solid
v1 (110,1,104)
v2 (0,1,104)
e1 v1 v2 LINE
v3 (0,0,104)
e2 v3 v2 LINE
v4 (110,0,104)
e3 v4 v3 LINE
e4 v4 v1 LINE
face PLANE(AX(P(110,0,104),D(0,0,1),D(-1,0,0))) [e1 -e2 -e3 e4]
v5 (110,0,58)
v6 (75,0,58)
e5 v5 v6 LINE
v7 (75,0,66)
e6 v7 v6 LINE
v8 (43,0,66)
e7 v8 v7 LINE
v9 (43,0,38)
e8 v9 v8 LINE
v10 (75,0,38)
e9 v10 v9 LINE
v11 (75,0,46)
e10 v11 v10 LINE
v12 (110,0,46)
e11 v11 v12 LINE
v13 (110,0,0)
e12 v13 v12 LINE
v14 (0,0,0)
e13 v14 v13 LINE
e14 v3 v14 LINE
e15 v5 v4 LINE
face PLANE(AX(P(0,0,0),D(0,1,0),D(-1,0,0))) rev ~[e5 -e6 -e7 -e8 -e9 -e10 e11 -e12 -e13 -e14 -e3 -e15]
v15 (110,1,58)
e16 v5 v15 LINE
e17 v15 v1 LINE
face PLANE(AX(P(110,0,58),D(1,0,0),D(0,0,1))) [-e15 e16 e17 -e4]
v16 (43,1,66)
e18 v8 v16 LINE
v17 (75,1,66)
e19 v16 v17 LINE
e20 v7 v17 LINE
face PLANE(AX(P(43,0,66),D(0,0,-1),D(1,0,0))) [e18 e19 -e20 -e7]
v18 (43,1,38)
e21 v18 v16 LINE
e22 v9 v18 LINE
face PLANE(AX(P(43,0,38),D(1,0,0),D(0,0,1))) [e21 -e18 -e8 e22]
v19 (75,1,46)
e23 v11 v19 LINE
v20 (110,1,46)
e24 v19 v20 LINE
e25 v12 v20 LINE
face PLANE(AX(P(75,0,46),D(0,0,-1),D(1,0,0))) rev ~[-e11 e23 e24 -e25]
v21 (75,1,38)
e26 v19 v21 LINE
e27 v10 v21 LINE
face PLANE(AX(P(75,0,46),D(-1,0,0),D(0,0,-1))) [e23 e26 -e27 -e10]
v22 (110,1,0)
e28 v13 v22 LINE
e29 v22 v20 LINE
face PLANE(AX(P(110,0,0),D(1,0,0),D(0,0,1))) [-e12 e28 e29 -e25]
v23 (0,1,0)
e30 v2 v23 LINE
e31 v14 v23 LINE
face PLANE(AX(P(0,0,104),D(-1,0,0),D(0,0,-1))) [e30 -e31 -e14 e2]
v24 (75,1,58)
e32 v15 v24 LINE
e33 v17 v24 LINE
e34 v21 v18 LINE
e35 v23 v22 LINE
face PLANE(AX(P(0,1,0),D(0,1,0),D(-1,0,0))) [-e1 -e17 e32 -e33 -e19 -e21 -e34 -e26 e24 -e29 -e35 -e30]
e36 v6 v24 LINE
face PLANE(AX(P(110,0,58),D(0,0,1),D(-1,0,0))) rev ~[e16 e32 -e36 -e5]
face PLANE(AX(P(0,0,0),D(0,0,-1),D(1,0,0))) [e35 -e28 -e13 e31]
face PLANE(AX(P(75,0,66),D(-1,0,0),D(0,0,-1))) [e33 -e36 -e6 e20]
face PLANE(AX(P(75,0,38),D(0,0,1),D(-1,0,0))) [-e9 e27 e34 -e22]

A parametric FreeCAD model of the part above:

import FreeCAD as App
import Part
import Sketcher
from FreeCAD import Vector
Q = App.Units.Quantity

doc = App.newDocument("Part")
params = doc.addObject("Spreadsheet::Sheet", "Params")
for row, (alias, value) in enumerate([
    ("sketch1_width", "110 mm"),
    ("sketch1_width2", "35 mm"),
    ("sketch1_width3", "32 mm"),
    ("sketch1_height", "104 mm"),
    ("sketch1_height2", "46 mm"),
    ("pad1_length", "1 mm"),
], start=1):
    params.set(f"A{row}", alias)
    params.set(f"B{row}", "=" + value)
    params.setAlias(f"B{row}", alias)

body = doc.addObject("PartDesign::Body", "Body")

sketch1 = body.newObject("Sketcher::SketchObject", "Sketch")
sketch1.AttachmentSupport = (doc.getObject("XZ_Plane"), [""])
sketch1.MapMode = "FlatFace"
sketch1.addGeometry([
    Part.LineSegment(Vector(110, 0, 0), Vector(0, 0, 0)),
    Part.LineSegment(Vector(0, 0, 0), Vector(0, 104, 0)),
    Part.LineSegment(Vector(0, 104, 0), Vector(110, 104, 0)),
    Part.LineSegment(Vector(110, 104, 0), Vector(110, 58, 0)),
    Part.LineSegment(Vector(110, 58, 0), Vector(75, 58, 0)),
    Part.LineSegment(Vector(75, 58, 0), Vector(75, 66, 0)),
    Part.LineSegment(Vector(75, 66, 0), Vector(43, 66, 0)),
    Part.LineSegment(Vector(43, 66, 0), Vector(43, 38, 0)),
    Part.LineSegment(Vector(43, 38, 0), Vector(75, 38, 0)),
    Part.LineSegment(Vector(75, 38, 0), Vector(75, 46, 0)),
    Part.LineSegment(Vector(75, 46, 0), Vector(110, 46, 0)),
    Part.LineSegment(Vector(110, 46, 0), Vector(110, 0, 0)),
], False)
sketch1.addConstraint([
    Sketcher.Constraint("Coincident", 0, 2, 1, 1),
    Sketcher.Constraint("Coincident", 1, 2, 2, 1),
    Sketcher.Constraint("Coincident", 2, 2, 3, 1),
    Sketcher.Constraint("Coincident", 3, 2, 4, 1),
    Sketcher.Constraint("Coincident", 4, 2, 5, 1),
    Sketcher.Constraint("Coincident", 5, 2, 6, 1),
    Sketcher.Constraint("Coincident", 6, 2, 7, 1),
    Sketcher.Constraint("Coincident", 7, 2, 8, 1),
    Sketcher.Constraint("Coincident", 8, 2, 9, 1),
    Sketcher.Constraint("Coincident", 9, 2, 10, 1),
    Sketcher.Constraint("Coincident", 10, 2, 11, 1),
    Sketcher.Constraint("Coincident", 11, 2, 0, 1),
    Sketcher.Constraint("Horizontal", 0),
    Sketcher.Constraint("Vertical", 1),
    Sketcher.Constraint("Horizontal", 2),
    Sketcher.Constraint("Vertical", 3),
    Sketcher.Constraint("Horizontal", 4),
    Sketcher.Constraint("Vertical", 5),
    Sketcher.Constraint("Horizontal", 6),
    Sketcher.Constraint("Vertical", 7),
    Sketcher.Constraint("Horizontal", 8),
    Sketcher.Constraint("Vertical", 9),
    Sketcher.Constraint("Horizontal", 10),
    Sketcher.Constraint("Vertical", 11),
    Sketcher.Constraint("Coincident", 0, 2, -1, 1),
    Sketcher.Constraint("Vertical", 5, 2, 8, 2),
    Sketcher.Constraint("Vertical", 3, 2, 10, 2),
    Sketcher.Constraint("Equal", 5, 9),
    Sketcher.Constraint("Equal", 3, 11),
    Sketcher.Constraint("DistanceX", 0, 2, 0, 1, Q("110 mm")),
    Sketcher.Constraint("DistanceX", 4, 2, 4, 1, Q("35 mm")),
    Sketcher.Constraint("DistanceX", 6, 2, 6, 1, Q("32 mm")),
    Sketcher.Constraint("DistanceY", 1, 1, 1, 2, Q("104 mm")),
    Sketcher.Constraint("DistanceY", 3, 2, 3, 1, Q("46 mm")),
    Sketcher.Constraint("DistanceY", 7, 2, 7, 1, Q("28 mm")),
])
sketch1.setExpression("Constraints[29]", "Params.sketch1_width")
sketch1.setExpression("Constraints[30]", "Params.sketch1_width2")
sketch1.setExpression("Constraints[31]", "Params.sketch1_width3")
sketch1.setExpression("Constraints[32]", "Params.sketch1_height")
sketch1.setExpression("Constraints[33]", "Params.sketch1_height2")
pad1 = body.newObject("PartDesign::Pad", "Pad")
pad1.Profile = sketch1
pad1.setExpression("Length", "Params.pad1_length")
pad1.Reversed = True

doc.recompute()
